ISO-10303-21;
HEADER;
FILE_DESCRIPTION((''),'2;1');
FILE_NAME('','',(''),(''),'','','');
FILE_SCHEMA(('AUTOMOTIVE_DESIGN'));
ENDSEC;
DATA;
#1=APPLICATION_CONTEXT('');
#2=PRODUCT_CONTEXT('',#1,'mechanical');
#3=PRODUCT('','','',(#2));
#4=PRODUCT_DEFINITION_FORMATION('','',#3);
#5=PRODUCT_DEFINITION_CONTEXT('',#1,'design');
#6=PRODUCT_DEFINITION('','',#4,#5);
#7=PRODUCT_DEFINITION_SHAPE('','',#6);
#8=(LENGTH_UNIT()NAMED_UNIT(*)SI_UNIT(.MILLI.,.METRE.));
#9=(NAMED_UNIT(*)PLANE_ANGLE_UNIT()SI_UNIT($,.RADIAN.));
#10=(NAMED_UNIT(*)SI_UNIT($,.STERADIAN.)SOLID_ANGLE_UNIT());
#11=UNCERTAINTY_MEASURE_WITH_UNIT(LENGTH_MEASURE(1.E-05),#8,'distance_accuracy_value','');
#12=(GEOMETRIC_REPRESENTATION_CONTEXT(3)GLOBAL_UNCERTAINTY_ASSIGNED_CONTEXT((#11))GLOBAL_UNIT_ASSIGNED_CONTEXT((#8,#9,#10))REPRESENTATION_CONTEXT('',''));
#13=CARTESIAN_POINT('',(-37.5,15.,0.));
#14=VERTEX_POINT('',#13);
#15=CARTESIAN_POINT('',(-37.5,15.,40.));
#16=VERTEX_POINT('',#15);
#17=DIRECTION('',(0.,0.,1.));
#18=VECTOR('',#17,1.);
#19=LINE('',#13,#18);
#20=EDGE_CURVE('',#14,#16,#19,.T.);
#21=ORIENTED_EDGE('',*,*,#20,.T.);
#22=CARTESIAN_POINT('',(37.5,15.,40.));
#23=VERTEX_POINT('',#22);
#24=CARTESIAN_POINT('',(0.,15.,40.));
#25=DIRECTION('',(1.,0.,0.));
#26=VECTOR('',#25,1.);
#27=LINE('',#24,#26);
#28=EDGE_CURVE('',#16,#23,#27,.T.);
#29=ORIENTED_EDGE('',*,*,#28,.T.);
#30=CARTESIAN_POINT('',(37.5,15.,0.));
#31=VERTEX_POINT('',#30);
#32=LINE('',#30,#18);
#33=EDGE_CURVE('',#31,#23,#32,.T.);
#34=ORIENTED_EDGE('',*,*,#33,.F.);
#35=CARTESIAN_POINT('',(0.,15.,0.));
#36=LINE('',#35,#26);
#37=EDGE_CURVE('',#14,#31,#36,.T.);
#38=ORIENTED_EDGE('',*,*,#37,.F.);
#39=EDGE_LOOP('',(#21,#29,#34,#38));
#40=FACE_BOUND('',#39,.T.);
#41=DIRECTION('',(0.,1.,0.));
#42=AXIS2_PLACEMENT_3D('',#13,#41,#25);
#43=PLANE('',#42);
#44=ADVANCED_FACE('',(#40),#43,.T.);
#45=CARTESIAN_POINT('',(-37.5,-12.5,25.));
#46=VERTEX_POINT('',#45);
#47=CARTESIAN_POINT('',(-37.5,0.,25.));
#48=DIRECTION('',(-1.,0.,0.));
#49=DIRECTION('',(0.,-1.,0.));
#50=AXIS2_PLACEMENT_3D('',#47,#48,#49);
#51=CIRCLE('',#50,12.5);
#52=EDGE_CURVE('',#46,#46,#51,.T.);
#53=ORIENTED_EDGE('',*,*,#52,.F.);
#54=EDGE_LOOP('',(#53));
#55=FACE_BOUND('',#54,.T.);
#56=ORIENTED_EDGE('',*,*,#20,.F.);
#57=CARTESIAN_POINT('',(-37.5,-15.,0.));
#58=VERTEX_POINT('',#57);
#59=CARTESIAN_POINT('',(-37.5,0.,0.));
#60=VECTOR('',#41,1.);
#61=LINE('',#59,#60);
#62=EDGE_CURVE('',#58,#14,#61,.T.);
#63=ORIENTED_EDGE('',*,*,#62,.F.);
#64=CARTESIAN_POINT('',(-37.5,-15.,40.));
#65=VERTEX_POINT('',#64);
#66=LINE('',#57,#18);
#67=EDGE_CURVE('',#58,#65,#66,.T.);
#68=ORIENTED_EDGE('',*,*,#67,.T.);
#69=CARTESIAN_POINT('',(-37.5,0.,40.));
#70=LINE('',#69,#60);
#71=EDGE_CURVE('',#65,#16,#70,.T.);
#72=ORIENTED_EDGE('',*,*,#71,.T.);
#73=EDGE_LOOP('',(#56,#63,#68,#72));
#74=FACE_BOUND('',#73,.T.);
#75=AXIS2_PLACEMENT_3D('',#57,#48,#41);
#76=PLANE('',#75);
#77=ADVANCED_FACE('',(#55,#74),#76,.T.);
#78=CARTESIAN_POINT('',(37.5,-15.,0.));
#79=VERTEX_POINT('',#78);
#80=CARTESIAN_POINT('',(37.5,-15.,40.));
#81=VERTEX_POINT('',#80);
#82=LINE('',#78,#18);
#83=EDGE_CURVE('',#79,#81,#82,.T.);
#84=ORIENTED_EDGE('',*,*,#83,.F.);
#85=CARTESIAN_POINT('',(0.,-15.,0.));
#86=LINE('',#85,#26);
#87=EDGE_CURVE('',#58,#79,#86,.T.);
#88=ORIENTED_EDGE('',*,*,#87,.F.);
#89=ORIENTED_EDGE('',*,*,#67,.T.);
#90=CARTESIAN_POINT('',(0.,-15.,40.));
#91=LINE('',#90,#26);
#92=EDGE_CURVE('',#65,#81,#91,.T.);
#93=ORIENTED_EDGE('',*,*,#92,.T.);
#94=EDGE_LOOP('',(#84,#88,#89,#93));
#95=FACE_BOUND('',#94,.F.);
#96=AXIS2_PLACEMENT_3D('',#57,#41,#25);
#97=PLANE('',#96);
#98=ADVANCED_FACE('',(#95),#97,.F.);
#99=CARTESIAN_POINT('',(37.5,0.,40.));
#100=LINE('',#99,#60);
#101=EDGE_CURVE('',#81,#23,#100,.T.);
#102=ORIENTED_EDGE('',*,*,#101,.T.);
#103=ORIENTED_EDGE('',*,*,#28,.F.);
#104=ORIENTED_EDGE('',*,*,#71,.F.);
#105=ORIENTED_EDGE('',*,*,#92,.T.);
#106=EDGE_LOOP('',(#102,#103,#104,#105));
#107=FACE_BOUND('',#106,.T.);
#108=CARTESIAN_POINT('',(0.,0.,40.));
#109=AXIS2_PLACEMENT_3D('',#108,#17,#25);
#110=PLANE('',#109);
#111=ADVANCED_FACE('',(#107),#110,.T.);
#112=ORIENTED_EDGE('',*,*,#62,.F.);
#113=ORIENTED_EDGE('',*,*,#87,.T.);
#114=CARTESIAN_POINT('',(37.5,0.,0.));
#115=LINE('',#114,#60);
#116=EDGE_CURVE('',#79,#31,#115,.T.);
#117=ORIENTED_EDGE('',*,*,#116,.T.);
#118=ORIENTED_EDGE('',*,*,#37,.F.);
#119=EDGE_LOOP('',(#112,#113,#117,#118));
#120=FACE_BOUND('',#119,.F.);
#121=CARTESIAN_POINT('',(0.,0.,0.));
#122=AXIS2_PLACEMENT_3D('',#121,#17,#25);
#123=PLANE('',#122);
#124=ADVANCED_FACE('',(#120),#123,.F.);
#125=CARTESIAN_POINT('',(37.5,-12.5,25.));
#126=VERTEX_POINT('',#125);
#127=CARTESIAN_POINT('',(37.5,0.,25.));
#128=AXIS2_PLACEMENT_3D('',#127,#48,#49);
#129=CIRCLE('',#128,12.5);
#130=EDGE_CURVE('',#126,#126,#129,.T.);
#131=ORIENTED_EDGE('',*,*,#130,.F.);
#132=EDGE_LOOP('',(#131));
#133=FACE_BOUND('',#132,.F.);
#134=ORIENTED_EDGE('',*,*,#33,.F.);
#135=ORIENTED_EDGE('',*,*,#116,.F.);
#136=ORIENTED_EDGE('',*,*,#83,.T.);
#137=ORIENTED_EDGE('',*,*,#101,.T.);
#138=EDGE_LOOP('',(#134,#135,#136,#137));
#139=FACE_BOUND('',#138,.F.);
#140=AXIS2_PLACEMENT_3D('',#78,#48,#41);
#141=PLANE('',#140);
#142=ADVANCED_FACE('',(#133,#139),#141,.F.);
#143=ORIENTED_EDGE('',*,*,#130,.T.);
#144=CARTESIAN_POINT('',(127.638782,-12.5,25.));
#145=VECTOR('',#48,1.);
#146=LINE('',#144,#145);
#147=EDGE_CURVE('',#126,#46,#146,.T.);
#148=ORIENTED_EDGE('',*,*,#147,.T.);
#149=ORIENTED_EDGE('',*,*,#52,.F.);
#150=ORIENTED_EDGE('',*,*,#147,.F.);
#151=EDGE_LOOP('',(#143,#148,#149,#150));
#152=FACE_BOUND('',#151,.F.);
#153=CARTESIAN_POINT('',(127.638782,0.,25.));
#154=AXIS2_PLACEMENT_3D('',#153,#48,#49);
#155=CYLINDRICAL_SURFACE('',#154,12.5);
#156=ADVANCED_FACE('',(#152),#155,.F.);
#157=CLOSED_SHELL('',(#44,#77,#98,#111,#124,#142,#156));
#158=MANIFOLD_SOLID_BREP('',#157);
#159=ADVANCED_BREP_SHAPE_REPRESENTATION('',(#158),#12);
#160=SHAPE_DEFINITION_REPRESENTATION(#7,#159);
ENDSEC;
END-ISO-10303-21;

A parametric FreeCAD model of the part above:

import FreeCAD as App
import Part
import Sketcher
from FreeCAD import Vector
Q = App.Units.Quantity

doc = App.newDocument("Part")
params = doc.addObject("Spreadsheet::Sheet", "Params")
for row, (alias, value) in enumerate([
    ("sketch1_width", "75 mm"),
    ("sketch1_height", "30 mm"),
    ("pad1_length", "40 mm"),
    ("sketch2_diameter", "25 mm"),
    ("hole_diameter", "25 mm"),
], start=1):
    params.set(f"A{row}", alias)
    params.set(f"B{row}", "=" + value)
    params.setAlias(f"B{row}", alias)

body = doc.addObject("PartDesign::Body", "Body")

# Sketch on XY plane
sketch1 = doc.addObject("Sketcher::SketchObject", "Sketch")
body.addObject(sketch1)
sketch1.AttachmentSupport = (doc.XY_Plane, [""])
sketch1.MapMode = "FlatFace"
sketch1.addGeometry([
    Part.LineSegment(Vector(-38, 15, 0), Vector(-38, -15, 0)),
    Part.LineSegment(Vector(-38, -15, 0), Vector(38, -15, 0)),
    Part.LineSegment(Vector(38, -15, 0), Vector(38, 15, 0)),
    Part.LineSegment(Vector(38, 15, 0), Vector(-38, 15, 0)),
], False)
sketch1.addConstraint([
    Sketcher.Constraint("Coincident", 0, 2, 1, 1),
    Sketcher.Constraint("Coincident", 1, 2, 2, 1),
    Sketcher.Constraint("Coincident", 2, 2, 3, 1),
    Sketcher.Constraint("Coincident", 3, 2, 0, 1),
    Sketcher.Constraint("Vertical", 0),
    Sketcher.Constraint("Horizontal", 1),
    Sketcher.Constraint("Vertical", 2),
    Sketcher.Constraint("Horizontal", 3),
    Sketcher.Constraint("Symmetric", 0, 2, 2, 2, -1, 1),
    Sketcher.Constraint("DistanceX", 1, 1, 1, 2, Q("75 mm")),
    Sketcher.Constraint("DistanceY", 0, 2, 0, 1, Q("30 mm")),
])
sketch1.setExpression("Constraints[9]", "Params.sketch1_width")
sketch1.setExpression("Constraints[10]", "Params.sketch1_height")
pad1 = doc.addObject("PartDesign::Pad", "Pad")
body.addObject(pad1)
pad1.Profile = sketch1
pad1.setExpression("Length", "Params.pad1_length")

# Sketch on YZ plane
sketch2 = doc.addObject("Sketcher::SketchObject", "Sketch001")
body.addObject(sketch2)
sketch2.AttachmentSupport = (doc.YZ_Plane, [""])
sketch2.MapMode = "FlatFace"
sketch2.AttachmentOffset = App.Placement(Vector(0, 0, 37.5), App.Rotation())
sketch2.addGeometry(Part.Circle(Vector(0, 25, 0), Vector(0, 0, 1), 12), False)
sketch2.addConstraint([
    Sketcher.Constraint("PointOnObject", 0, 3, -2),
    Sketcher.Constraint("Diameter", 0, Q("25 mm")),
    Sketcher.Constraint("DistanceY", -1, 1, 0, 3, Q("25 mm")),
])
sketch2.setExpression("Constraints[1]", "Params.sketch2_diameter")
doc.recompute()
hole = doc.addObject("PartDesign::Hole", "Hole")
body.addObject(hole)
hole.Profile = sketch2
hole.ThreadType = "None"
hole.setExpression("Diameter", "Params.hole_diameter")
hole.DepthType = "ThroughAll"

doc.recompute()
